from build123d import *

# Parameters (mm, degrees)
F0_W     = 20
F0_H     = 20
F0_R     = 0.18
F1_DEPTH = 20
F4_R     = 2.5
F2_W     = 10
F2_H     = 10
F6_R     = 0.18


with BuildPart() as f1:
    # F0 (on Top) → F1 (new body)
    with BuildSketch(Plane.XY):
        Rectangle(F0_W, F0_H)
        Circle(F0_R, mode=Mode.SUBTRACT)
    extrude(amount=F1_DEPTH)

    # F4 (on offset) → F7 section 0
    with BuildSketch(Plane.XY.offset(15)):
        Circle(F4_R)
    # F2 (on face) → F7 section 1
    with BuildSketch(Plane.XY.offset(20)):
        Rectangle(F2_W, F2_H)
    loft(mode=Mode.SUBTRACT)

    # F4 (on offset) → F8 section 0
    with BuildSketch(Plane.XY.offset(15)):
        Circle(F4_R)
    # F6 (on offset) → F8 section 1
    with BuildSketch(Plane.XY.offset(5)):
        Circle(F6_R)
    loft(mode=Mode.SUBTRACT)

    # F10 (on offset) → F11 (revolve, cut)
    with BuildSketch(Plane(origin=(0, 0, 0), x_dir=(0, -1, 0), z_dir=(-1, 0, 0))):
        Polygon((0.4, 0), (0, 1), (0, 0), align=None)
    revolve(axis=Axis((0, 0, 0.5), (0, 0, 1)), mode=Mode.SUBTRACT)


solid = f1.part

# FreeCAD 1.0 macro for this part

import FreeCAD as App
import Part
import Sketcher
from FreeCAD import Vector
Q = App.Units.Quantity


def add_polygon(sketch, points):
    """Adds a closed chain of lines whose ends are joined by coincident constraints."""
    first, n = sketch.GeometryCount, len(points)
    for a, b in zip(points, points[1:] + points[:1]):
        sketch.addGeometry(Part.LineSegment(App.Vector(*a, 0), App.Vector(*b, 0)), False)
    for i in range(n):
        sketch.addConstraint(Sketcher.Constraint("Coincident", first + i, 2, first + (i + 1) % n, 1))

doc = App.newDocument("Part")
body = doc.addObject("PartDesign::Body", "Body")

# Sketch on XY plane
sketch1 = body.newObject("Sketcher::SketchObject", "Sketch")
sketch1.AttachmentSupport = (doc.getObject("XY_Plane"), [""])
sketch1.MapMode = "FlatFace"
add_polygon(sketch1, [(-10, 10), (-10, -10), (10, -10), (10, 10)])  # lines 0-3
sketch1.addGeometry(Part.Circle(Vector(0, 0, 0), Vector(0, 0, 1), 0.18), False)  # 4
sketch1.addConstraint([
    Sketcher.Constraint("Vertical", 0),
    Sketcher.Constraint("Horizontal", 1),
    Sketcher.Constraint("Vertical", 2),
    Sketcher.Constraint("Horizontal", 3),
    Sketcher.Constraint("Coincident", 4, 3, -1, 1),
    Sketcher.Constraint("Symmetric", 0, 2, 2, 2, -1, 1),
    Sketcher.Constraint("Equal", 3, 0),
    Sketcher.Constraint("Diameter", 4, Q("0.36 mm")),
    Sketcher.Constraint("DistanceX", 1, 1, 1, 2, Q("20 mm")),
])
pad1 = body.newObject("PartDesign::Pad", "Pad")
pad1.Profile = sketch1
pad1.Length = 20

# Sketch on XY plane
sketch2 = body.newObject("Sketcher::SketchObject", "Sketch001")
sketch2.AttachmentSupport = (doc.getObject("XY_Plane"), [""])
sketch2.MapMode = "FlatFace"
sketch2.AttachmentOffset = App.Placement(Vector(0, 0, 15), App.Rotation())
sketch2.addGeometry(Part.Circle(Vector(0, 0, 0), Vector(0, 0, 1), 2.5), False)
sketch2.addConstraint([
    Sketcher.Constraint("Coincident", 0, 3, -1, 1),
    Sketcher.Constraint("Diameter", 0, Q("5 mm")),
])

# Sketch on XY plane
sketch3 = body.newObject("Sketcher::SketchObject", "Sketch002")
sketch3.AttachmentSupport = (doc.getObject("XY_Plane"), [""])
sketch3.MapMode = "FlatFace"
sketch3.AttachmentOffset = App.Placement(Vector(0, 0, 20), App.Rotation())
add_polygon(sketch3, [(-5, 5), (-5, -5), (5, -5), (5, 5)])  # lines 0-3
sketch3.addConstraint([
    Sketcher.Constraint("Vertical", 0),
    Sketcher.Constraint("Horizontal", 1),
    Sketcher.Constraint("Vertical", 2),
    Sketcher.Constraint("Horizontal", 3),
    Sketcher.Constraint("Symmetric", 0, 2, 2, 2, -1, 1),
    Sketcher.Constraint("Equal", 3, 0),
    Sketcher.Constraint("DistanceX", 1, 1, 1, 2, Q("10 mm")),
])

subtractiveloft = body.newObject("PartDesign::SubtractiveLoft", "SubtractiveLoft")
subtractiveloft.Profile = sketch2
subtractiveloft.Sections = [sketch3]

# Sketch on XY plane
sketch4 = body.newObject("Sketcher::SketchObject", "Sketch003")
sketch4.AttachmentSupport = (doc.getObject("XY_Plane"), [""])
sketch4.MapMode = "FlatFace"
sketch4.AttachmentOffset = App.Placement(Vector(0, 0, 15), App.Rotation())
sketch4.addGeometry(Part.Circle(Vector(0, 0, 0), Vector(0, 0, 1), 2.5), False)
sketch4.addConstraint([
    Sketcher.Constraint("Coincident", 0, 3, -1, 1),
    Sketcher.Constraint("Diameter", 0, Q("5 mm")),
])

# Sketch on XY plane
sketch5 = body.newObject("Sketcher::SketchObject", "Sketch004")
sketch5.AttachmentSupport = (doc.getObject("XY_Plane"), [""])
sketch5.MapMode = "FlatFace"
sketch5.AttachmentOffset = App.Placement(Vector(0, 0, 5), App.Rotation())
sketch5.addGeometry(Part.Circle(Vector(0, 0, 0), Vector(0, 0, 1), 0.18), False)
sketch5.addConstraint([
    Sketcher.Constraint("Coincident", 0, 3, -1, 1),
    Sketcher.Constraint("Diameter", 0, Q("0.36 mm")),
])

subtractiveloft2 = body.newObject("PartDesign::SubtractiveLoft", "SubtractiveLoft001")
subtractiveloft2.Profile = sketch4
subtractiveloft2.Sections = [sketch5]

# Sketch on YZ plane
sketch6 = body.newObject("Sketcher::SketchObject", "Sketch005")
sketch6.AttachmentSupport = (doc.getObject("YZ_Plane"), [""])
sketch6.MapMode = "FlatFace"
add_polygon(sketch6, [(-0.4, 0), (0, 1), (0, 0)])  # lines 0-2
sketch6.addConstraint([
    Sketcher.Constraint("Vertical", 1),
    Sketcher.Constraint("Horizontal", 2),
    Sketcher.Constraint("Coincident", 1, 2, -1, 1),
    Sketcher.Constraint("DistanceY", 1, 2, 1, 1, Q("1 mm")),
    Sketcher.Constraint("DistanceX", 2, 2, 2, 1, Q("0.4 mm")),
])
groove = body.newObject("PartDesign::Groove", "Groove")
groove.Profile = sketch6
groove.ReferenceAxis = (sketch6, ["V_Axis"])
groove.Angle = 360

doc.recompute()
